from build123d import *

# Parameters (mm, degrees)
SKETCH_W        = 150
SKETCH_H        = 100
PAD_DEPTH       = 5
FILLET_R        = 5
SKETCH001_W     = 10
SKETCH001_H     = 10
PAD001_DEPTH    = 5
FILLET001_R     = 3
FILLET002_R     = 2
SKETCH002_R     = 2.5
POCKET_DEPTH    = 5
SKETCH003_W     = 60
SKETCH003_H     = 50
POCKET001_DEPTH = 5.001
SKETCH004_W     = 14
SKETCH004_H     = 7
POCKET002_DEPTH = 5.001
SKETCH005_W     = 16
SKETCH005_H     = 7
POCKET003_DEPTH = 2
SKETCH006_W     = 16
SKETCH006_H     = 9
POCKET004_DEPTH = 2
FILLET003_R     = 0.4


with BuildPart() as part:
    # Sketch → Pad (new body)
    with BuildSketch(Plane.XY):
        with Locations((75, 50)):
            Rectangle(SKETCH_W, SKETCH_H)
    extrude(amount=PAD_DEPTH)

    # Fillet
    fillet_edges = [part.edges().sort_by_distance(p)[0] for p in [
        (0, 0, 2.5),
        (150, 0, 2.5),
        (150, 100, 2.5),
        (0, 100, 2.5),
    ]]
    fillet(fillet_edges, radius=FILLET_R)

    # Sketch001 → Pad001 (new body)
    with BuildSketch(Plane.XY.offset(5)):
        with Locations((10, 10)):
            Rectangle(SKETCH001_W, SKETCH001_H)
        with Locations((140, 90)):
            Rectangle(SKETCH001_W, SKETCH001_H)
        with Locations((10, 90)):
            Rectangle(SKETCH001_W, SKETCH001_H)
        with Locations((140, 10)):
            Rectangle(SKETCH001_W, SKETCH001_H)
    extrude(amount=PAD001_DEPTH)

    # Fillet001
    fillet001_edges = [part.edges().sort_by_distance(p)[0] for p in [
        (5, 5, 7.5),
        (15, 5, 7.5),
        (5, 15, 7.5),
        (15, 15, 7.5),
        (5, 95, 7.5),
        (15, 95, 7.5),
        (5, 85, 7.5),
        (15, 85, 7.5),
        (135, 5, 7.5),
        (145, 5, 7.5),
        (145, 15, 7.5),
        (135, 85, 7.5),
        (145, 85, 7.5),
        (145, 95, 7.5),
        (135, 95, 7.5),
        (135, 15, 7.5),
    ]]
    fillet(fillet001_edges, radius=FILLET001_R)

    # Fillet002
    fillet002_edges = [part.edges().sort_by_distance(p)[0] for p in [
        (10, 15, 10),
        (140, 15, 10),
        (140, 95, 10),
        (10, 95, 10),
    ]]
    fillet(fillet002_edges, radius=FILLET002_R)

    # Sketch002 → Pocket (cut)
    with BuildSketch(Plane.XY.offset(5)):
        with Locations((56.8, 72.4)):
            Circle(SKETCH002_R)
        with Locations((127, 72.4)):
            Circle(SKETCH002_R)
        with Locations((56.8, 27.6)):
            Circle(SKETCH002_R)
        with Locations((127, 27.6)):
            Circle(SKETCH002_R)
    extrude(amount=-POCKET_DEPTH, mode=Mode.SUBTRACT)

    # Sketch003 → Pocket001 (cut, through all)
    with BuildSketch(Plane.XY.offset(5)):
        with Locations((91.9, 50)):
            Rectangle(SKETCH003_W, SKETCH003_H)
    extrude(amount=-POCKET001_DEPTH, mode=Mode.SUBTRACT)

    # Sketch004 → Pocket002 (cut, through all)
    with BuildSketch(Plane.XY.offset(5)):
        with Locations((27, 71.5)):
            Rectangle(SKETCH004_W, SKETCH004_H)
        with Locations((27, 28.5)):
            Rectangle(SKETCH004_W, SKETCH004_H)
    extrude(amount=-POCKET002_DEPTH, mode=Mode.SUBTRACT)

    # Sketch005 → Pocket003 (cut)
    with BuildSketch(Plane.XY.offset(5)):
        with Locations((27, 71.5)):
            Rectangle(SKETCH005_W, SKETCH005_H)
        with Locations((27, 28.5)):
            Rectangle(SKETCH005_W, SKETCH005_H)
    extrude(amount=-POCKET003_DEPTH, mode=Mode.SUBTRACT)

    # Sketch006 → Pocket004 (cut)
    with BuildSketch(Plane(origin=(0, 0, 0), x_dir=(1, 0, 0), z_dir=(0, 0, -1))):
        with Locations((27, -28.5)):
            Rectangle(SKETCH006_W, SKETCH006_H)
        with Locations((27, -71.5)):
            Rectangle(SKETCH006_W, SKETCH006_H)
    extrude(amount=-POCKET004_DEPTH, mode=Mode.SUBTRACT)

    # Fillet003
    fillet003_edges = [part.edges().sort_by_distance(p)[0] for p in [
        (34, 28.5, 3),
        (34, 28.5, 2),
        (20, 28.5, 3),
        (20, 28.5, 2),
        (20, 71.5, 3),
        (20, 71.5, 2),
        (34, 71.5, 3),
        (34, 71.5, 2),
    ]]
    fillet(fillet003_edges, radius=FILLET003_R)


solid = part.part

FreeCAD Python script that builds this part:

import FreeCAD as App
import Part
import Sketcher


def edges_at(feature, points):
    """Names of the edges that pass closest to the given points."""
    edges = feature.Shape.Edges
    near = lambda p: min(range(len(edges)), key=lambda i: edges[i].distToShape(Part.Vertex(*p))[0])
    return sorted({f"Edge{near(p) + 1}" for p in points})


def add_polygon(sketch, points):
    """Adds a closed chain of lines whose ends are joined by coincident constraints."""
    first, n = sketch.GeometryCount, len(points)
    for a, b in zip(points, points[1:] + points[:1]):
        sketch.addGeometry(Part.LineSegment(App.Vector(*a, 0), App.Vector(*b, 0)), False)
    for i in range(n):
        sketch.addConstraint(Sketcher.Constraint("Coincident", first + i, 2, first + (i + 1) % n, 1))

doc = App.newDocument("Part")
body = doc.addObject("PartDesign::Body", "Body")

sketch1 = body.newObject("Sketcher::SketchObject", "Sketch")
sketch1.AttachmentSupport = (doc.getObject("XY_Plane"), [""])
sketch1.MapMode = "FlatFace"
add_polygon(sketch1, [(0, 100), (0, 0), (150, 0), (150, 100)])
sketch1.addConstraint([
    Sketcher.Constraint("Vertical", 0),
    Sketcher.Constraint("Horizontal", 1),
    Sketcher.Constraint("Vertical", 2),
    Sketcher.Constraint("Horizontal", 3),
    Sketcher.Constraint("Coincident", 0, 2, -1, 1),
    Sketcher.Constraint("DistanceX", 1, 1, 1, 2, 150.0),
    Sketcher.Constraint("DistanceY", 0, 2, 0, 1, 100.0),
])
pad1 = body.newObject("PartDesign::Pad", "Pad")
pad1.Profile = sketch1
pad1.Length = 5
doc.recompute()

fillet = body.newObject("PartDesign::Fillet", "Fillet")
fillet.Base = (pad1, edges_at(pad1, [
    (0, 0, 2.5),
    (150, 0, 2.5),
    (150, 100, 2.5),
    (0, 100, 2.5),
]))
fillet.Radius = 5

sketch2 = body.newObject("Sketcher::SketchObject", "Sketch001")
sketch2.AttachmentSupport = (doc.getObject("XY_Plane"), [""])
sketch2.MapMode = "FlatFace"
sketch2.AttachmentOffset = App.Placement(App.Vector(0, 0, 5), App.Rotation())
add_polygon(sketch2, [(5, 15), (5, 5), (15, 5), (15, 15)])
add_polygon(sketch2, [(135, 95), (135, 85), (145, 85), (145, 95)])
add_polygon(sketch2, [(5, 95), (5, 85), (15, 85), (15, 95)])
add_polygon(sketch2, [(135, 15), (135, 5), (145, 5), (145, 15)])
sketch2.addConstraint([
    Sketcher.Constraint("Vertical", 0),
    Sketcher.Constraint("Horizontal", 1),
    Sketcher.Constraint("Vertical", 2),
    Sketcher.Constraint("Horizontal", 3),
    Sketcher.Constraint("Vertical", 4),
    Sketcher.Constraint("Horizontal", 5),
    Sketcher.Constraint("Vertical", 6),
    Sketcher.Constraint("Horizontal", 7),
    Sketcher.Constraint("Vertical", 8),
    Sketcher.Constraint("Horizontal", 9),
    Sketcher.Constraint("Vertical", 10),
    Sketcher.Constraint("Horizontal", 11),
    Sketcher.Constraint("Vertical", 12),
    Sketcher.Constraint("Horizontal", 13),
    Sketcher.Constraint("Vertical", 14),
    Sketcher.Constraint("Horizontal", 15),
    Sketcher.Constraint("Horizontal", 5, 2, 8, 2),
    Sketcher.Constraint("Horizontal", 7, 2, 10, 2),
    Sketcher.Constraint("Horizontal", 1, 2, 12, 2),
    Sketcher.Constraint("Horizontal", 3, 2, 14, 2),
    Sketcher.Constraint("Vertical", 3, 2, 8, 2),
    Sketcher.Constraint("Vertical", 2, 2, 9, 2),
    Sketcher.Constraint("Vertical", 7, 2, 12, 2),
    Sketcher.Constraint("Vertical", 6, 2, 13, 2),
    Sketcher.Constraint("Equal", 3, 5),
    Sketcher.Constraint("Equal", 15, 0),
    Sketcher.Constraint("Equal", 2, 4),
    Sketcher.Constraint("DistanceX", 1, 1, 1, 2, 10.0),
    Sketcher.Constraint("DistanceX", -1, 1, 0, 2, 5.0),
    Sketcher.Constraint("DistanceY", -1, 1, 0, 2, 5.0),
    Sketcher.Constraint("DistanceX", -1, 1, 4, 2, 135.0),
    Sketcher.Constraint("DistanceY", -1, 1, 4, 2, 85.0),
])
pad2 = body.newObject("PartDesign::Pad", "Pad001")
pad2.Profile = sketch2
pad2.Length = 5
doc.recompute()

fillet2 = body.newObject("PartDesign::Fillet", "Fillet001")
fillet2.Base = (pad2, edges_at(pad2, [
    (5, 5, 7.5),
    (15, 5, 7.5),
    (5, 15, 7.5),
    (15, 15, 7.5),
    (5, 95, 7.5),
    (15, 95, 7.5),
    (5, 85, 7.5),
    (15, 85, 7.5),
    (135, 5, 7.5),
    (145, 5, 7.5),
    (145, 15, 7.5),
    (135, 85, 7.5),
    (145, 85, 7.5),
    (145, 95, 7.5),
    (135, 95, 7.5),
    (135, 15, 7.5),
]))
fillet2.Radius = 3
doc.recompute()

fillet3 = body.newObject("PartDesign::Fillet", "Fillet002")
fillet3.Base = (fillet2, edges_at(fillet2, [
    (10, 15, 10),
    (140, 15, 10),
    (140, 95, 10),
    (10, 95, 10),
]))
fillet3.Radius = 2

sketch3 = body.newObject("Sketcher::SketchObject", "Sketch002")
sketch3.AttachmentSupport = (doc.getObject("XY_Plane"), [""])
sketch3.MapMode = "FlatFace"
sketch3.AttachmentOffset = App.Placement(App.Vector(0, 0, 5), App.Rotation())
sketch3.addGeometry([
    Part.Circle(App.Vector(56.8, 72.4, 0), App.Vector(0, 0, 1), 2.5),
    Part.Circle(App.Vector(127, 72.4, 0), App.Vector(0, 0, 1), 2.5),
    Part.Circle(App.Vector(56.8, 27.6, 0), App.Vector(0, 0, 1), 2.5),
    Part.Circle(App.Vector(127, 27.6, 0), App.Vector(0, 0, 1), 2.5),
], False)
sketch3.addConstraint([
    Sketcher.Constraint("Equal", 0, 1),
    Sketcher.Constraint("Equal", 1, 2),
    Sketcher.Constraint("Equal", 2, 3),
    Sketcher.Constraint("Horizontal", 0, 3, 1, 3),
    Sketcher.Constraint("Horizontal", 2, 3, 3, 3),
    Sketcher.Constraint("Vertical", 0, 3, 2, 3),
    Sketcher.Constraint("Vertical", 1, 3, 3, 3),
    Sketcher.Constraint("Diameter", 0, 5.0),
    Sketcher.Constraint("DistanceX", -1, 1, 1, 3, 127.0),
    Sketcher.Constraint("DistanceX", -1, 1, 0, 3, 56.8),
    Sketcher.Constraint("DistanceY", -1, 1, 0, 3, 72.4),
    Sketcher.Constraint("DistanceY", -1, 1, 2, 3, 27.6),
])
pocket1 = body.newObject("PartDesign::Pocket", "Pocket")
pocket1.Profile = sketch3
pocket1.Length = 5

sketch4 = body.newObject("Sketcher::SketchObject", "Sketch003")
sketch4.AttachmentSupport = (doc.getObject("XY_Plane"), [""])
sketch4.MapMode = "FlatFace"
sketch4.AttachmentOffset = App.Placement(App.Vector(0, 0, 5), App.Rotation())
add_polygon(sketch4, [(62, 75), (62, 25), (122, 25), (122, 75)])
sketch4.addConstraint([
    Sketcher.Constraint("Vertical", 0),
    Sketcher.Constraint("Horizontal", 1),
    Sketcher.Constraint("Vertical", 2),
    Sketcher.Constraint("Horizontal", 3),
    Sketcher.Constraint("DistanceX", 1, 1, 1, 2, 60.0),
    Sketcher.Constraint("DistanceY", 0, 2, 0, 1, 50.0),
    Sketcher.Constraint("DistanceY", -1, 1, 0, 2, 25.0),
    Sketcher.Constraint("DistanceX", -1, 1, 0, 2, 61.9),
])
pocket2 = body.newObject("PartDesign::Pocket", "Pocket001")
pocket2.Profile = sketch4
pocket2.Type = "ThroughAll"

sketch5 = body.newObject("Sketcher::SketchObject", "Sketch004")
sketch5.AttachmentSupport = (doc.getObject("XY_Plane"), [""])
sketch5.MapMode = "FlatFace"
sketch5.AttachmentOffset = App.Placement(App.Vector(0, 0, 5), App.Rotation())
add_polygon(sketch5, [(20, 75), (20, 68), (34, 68), (34, 75)])
add_polygon(sketch5, [(20, 32), (20, 25), (34, 25), (34, 32)])
sketch5.addConstraint([
    Sketcher.Constraint("Vertical", 0),
    Sketcher.Constraint("Horizontal", 1),
    Sketcher.Constraint("Vertical", 2),
    Sketcher.Constraint("Horizontal", 3),
    Sketcher.Constraint("Vertical", 4),
    Sketcher.Constraint("Horizontal", 5),
    Sketcher.Constraint("Vertical", 6),
    Sketcher.Constraint("Horizontal", 7),
    Sketcher.Constraint("Vertical", 3, 2, 4, 2),
    Sketcher.Constraint("Vertical", 2, 2, 5, 2),
    Sketcher.Constraint("Equal", 2, 4),
    Sketcher.Constraint("DistanceX", 1, 1, 1, 2, 14.0),
    Sketcher.Constraint("DistanceY", 0, 2, 0, 1, 7.0),
    Sketcher.Constraint("DistanceX", -1, 1, 0, 2, 20.0),
    Sketcher.Constraint("DistanceY", -1, 1, 0, 2, 68.0),
    Sketcher.Constraint("DistanceY", -1, 1, 4, 2, 25.0),
])
pocket3 = body.newObject("PartDesign::Pocket", "Pocket002")
pocket3.Profile = sketch5
pocket3.Type = "ThroughAll"

sketch6 = body.newObject("Sketcher::SketchObject", "Sketch005")
sketch6.AttachmentSupport = (doc.getObject("XY_Plane"), [""])
sketch6.MapMode = "FlatFace"
sketch6.AttachmentOffset = App.Placement(App.Vector(0, 0, 5), App.Rotation())
add_polygon(sketch6, [(19, 75), (19, 68), (35, 68), (35, 75)])
add_polygon(sketch6, [(19, 32), (19, 25), (35, 25), (35, 32)])
sketch6.addConstraint([
    Sketcher.Constraint("Vertical", 0),
    Sketcher.Constraint("Horizontal", 1),
    Sketcher.Constraint("Vertical", 2),
    Sketcher.Constraint("Horizontal", 3),
    Sketcher.Constraint("Vertical", 4),
    Sketcher.Constraint("Horizontal", 5),
    Sketcher.Constraint("Vertical", 6),
    Sketcher.Constraint("Horizontal", 7),
    Sketcher.Constraint("Vertical", 3, 2, 4, 2),
    Sketcher.Constraint("Vertical", 2, 2, 5, 2),
    Sketcher.Constraint("Equal", 2, 4),
    Sketcher.Constraint("DistanceX", 1, 1, 1, 2, 16.0),
    Sketcher.Constraint("DistanceY", 0, 2, 0, 1, 7.0),
    Sketcher.Constraint("DistanceX", -1, 1, 0, 2, 19.0),
    Sketcher.Constraint("DistanceY", -1, 1, 0, 2, 68.0),
    Sketcher.Constraint("DistanceY", -1, 1, 4, 2, 25.0),
])
pocket4 = body.newObject("PartDesign::Pocket", "Pocket003")
pocket4.Profile = sketch6
pocket4.Length = 2

sketch7 = body.newObject("Sketcher::SketchObject", "Sketch006")
sketch7.AttachmentSupport = (doc.getObject("XY_Plane"), [""])
sketch7.MapMode = "FlatFace"
add_polygon(sketch7, [(19, 24), (19, 33), (35, 33), (35, 24)])
add_polygon(sketch7, [(19, 67), (19, 76), (35, 76), (35, 67)])
sketch7.addConstraint([
    Sketcher.Constraint("Vertical", 0),
    Sketcher.Constraint("Horizontal", 1),
    Sketcher.Constraint("Vertical", 2),
    Sketcher.Constraint("Horizontal", 3),
    Sketcher.Constraint("Vertical", 4),
    Sketcher.Constraint("Horizontal", 5),
    Sketcher.Constraint("Vertical", 6),
    Sketcher.Constraint("Horizontal", 7),
    Sketcher.Constraint("Vertical", 3, 2, 4, 2),
    Sketcher.Constraint("Vertical", 2, 2, 5, 2),
    Sketcher.Constraint("Equal", 2, 4),
    Sketcher.Constraint("DistanceX", 1, 1, 1, 2, 16.0),
    Sketcher.Constraint("DistanceY", 0, 1, 0, 2, 9.0),
    Sketcher.Constraint("DistanceX", -1, 1, 0, 2, 19.0),
    Sketcher.Constraint("DistanceY", -1, 1, 0, 2, 33.0),
    Sketcher.Constraint("DistanceY", -1, 1, 4, 2, 76.0),
])
pocket5 = body.newObject("PartDesign::Pocket", "Pocket004")
pocket5.Profile = sketch7
pocket5.Length = 2
pocket5.Reversed = True
doc.recompute()

fillet4 = body.newObject("PartDesign::Fillet", "Fillet003")
fillet4.Base = (pocket5, edges_at(pocket5, [
    (34, 28.5, 3),
    (34, 28.5, 2),
    (20, 28.5, 3),
    (20, 28.5, 2),
    (20, 71.5, 3),
    (20, 71.5, 2),
    (34, 71.5, 3),
    (34, 71.5, 2),
]))
fillet4.Radius = 0.4

doc.recompute()
